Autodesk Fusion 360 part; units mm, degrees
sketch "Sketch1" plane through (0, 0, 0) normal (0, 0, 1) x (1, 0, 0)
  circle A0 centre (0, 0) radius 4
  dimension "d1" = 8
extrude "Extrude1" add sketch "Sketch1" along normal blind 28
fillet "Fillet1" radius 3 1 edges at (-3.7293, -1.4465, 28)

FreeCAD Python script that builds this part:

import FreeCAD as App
import Part
import Sketcher

V = App.Vector


def edges_at(feature, points):
    """Names of the edges that pass closest to the given points."""
    edges = feature.Shape.Edges
    near = lambda p: min(range(len(edges)), key=lambda i: edges[i].distToShape(Part.Vertex(*p))[0])
    return sorted({f"Edge{near(p) + 1}" for p in points})

doc = App.newDocument("Part")
params = doc.addObject("Spreadsheet::Sheet", "Params")
for row, (alias, value) in enumerate([
    ("sketch1_diameter", "8 mm"),
    ("pad1_length", "28 mm"),
    ("fillet_radius", "3 mm"),
], start=1):
    params.set(f"A{row}", alias)
    params.set(f"B{row}", "=" + value)
    params.setAlias(f"B{row}", alias)

body = doc.addObject("PartDesign::Body", "Body")

# Sketch on XY plane
sketch1 = body.newObject("Sketcher::SketchObject", "Sketch")
sketch1.AttachmentSupport = (doc.getObject("XY_Plane"), [""])
sketch1.MapMode = "FlatFace"
sketch1.addGeometry(Part.Circle(V(0, 0, 0), V(0, 0, 1), 4), False)
sketch1.addConstraint([
    Sketcher.Constraint("Coincident", 0, 3, -1, 1),
    Sketcher.Constraint("Diameter", 0, 8.0),
])
sketch1.setExpression("Constraints[1]", "Params.sketch1_diameter")
pad1 = body.newObject("PartDesign::Pad", "Pad")
pad1.Profile = sketch1
pad1.setExpression("Length", "Params.pad1_length")
doc.recompute()

fillet = body.newObject("PartDesign::Fillet", "Fillet")
fillet.Base = (pad1, edges_at(pad1, [(-3.729, -1.446, 28)]))
fillet.setExpression("Radius", "Params.fillet_radius")

doc.recompute()
